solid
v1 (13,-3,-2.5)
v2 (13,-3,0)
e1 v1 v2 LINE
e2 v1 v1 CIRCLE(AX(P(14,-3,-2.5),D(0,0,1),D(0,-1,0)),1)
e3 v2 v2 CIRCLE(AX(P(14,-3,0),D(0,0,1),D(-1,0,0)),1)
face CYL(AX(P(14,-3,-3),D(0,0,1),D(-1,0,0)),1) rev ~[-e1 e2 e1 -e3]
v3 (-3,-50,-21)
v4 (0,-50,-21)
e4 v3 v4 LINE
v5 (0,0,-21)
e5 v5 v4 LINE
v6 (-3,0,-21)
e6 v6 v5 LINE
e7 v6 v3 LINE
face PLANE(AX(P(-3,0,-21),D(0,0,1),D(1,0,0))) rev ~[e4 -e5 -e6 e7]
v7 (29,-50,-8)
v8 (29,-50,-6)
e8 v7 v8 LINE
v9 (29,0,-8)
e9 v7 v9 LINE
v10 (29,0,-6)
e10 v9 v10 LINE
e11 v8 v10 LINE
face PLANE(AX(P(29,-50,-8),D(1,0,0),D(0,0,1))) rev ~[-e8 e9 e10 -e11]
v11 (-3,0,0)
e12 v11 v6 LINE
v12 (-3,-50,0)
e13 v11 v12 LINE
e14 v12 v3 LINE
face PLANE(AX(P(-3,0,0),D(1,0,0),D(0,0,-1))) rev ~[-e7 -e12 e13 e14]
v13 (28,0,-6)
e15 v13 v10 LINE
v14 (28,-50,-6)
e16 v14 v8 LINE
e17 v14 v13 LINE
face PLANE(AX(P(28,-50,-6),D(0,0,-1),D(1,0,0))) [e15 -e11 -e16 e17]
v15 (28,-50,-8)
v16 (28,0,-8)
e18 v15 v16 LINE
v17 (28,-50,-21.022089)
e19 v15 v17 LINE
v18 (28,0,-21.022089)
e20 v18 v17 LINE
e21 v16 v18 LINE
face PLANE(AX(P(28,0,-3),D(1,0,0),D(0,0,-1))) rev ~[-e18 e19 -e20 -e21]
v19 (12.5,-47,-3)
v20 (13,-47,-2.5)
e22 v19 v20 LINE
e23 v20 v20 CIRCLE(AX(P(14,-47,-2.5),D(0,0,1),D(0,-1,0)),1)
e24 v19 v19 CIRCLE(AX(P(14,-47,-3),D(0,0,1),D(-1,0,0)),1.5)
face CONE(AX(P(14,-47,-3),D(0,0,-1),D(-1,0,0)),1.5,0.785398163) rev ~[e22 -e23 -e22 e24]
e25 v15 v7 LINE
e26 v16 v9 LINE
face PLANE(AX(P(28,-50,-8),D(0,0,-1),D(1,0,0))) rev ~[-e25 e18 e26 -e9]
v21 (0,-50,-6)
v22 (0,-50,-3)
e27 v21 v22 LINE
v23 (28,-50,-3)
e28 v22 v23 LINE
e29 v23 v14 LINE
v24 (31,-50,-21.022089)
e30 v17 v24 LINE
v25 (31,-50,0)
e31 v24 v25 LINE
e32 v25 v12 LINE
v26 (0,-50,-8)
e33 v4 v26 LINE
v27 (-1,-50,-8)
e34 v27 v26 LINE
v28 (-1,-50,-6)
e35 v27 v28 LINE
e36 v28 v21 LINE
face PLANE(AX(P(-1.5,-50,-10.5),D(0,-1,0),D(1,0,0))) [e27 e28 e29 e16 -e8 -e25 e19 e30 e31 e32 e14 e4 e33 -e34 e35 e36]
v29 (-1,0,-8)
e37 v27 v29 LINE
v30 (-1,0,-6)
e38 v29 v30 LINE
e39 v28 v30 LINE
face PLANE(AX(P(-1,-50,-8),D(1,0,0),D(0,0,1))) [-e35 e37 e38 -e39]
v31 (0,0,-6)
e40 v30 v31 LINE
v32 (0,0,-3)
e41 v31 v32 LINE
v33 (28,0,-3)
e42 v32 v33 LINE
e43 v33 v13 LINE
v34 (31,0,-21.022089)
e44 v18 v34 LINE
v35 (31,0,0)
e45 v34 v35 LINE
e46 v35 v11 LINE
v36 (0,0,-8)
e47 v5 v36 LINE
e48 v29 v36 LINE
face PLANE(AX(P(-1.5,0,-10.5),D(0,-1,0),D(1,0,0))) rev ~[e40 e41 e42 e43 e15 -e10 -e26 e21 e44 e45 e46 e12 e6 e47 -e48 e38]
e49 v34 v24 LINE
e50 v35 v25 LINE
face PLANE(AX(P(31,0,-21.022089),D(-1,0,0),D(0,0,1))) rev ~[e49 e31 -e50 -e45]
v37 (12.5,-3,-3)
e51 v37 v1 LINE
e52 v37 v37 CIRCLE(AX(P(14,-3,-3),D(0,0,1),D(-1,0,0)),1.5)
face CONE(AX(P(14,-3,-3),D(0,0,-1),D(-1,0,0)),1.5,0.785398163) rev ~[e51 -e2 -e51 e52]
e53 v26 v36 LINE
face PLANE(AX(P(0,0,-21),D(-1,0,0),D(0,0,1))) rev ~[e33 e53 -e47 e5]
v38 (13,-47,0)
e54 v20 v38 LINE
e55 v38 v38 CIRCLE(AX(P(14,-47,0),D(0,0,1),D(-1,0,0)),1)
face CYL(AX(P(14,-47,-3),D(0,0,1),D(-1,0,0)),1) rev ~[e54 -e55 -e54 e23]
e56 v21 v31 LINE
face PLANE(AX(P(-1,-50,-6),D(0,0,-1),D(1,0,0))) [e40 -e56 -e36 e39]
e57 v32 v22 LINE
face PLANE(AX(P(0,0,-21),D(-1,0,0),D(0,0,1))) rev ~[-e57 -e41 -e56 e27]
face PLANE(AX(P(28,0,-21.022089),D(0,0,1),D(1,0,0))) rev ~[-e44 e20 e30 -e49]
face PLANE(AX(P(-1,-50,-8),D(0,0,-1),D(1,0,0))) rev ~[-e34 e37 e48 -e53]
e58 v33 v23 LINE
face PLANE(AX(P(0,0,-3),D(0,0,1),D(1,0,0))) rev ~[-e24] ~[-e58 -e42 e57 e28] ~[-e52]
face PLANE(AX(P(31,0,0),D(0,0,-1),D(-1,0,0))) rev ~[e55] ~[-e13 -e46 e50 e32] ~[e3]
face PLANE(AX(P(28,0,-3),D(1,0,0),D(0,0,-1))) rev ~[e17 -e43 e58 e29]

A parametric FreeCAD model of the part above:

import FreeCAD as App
import Part
import Sketcher
Q = App.Units.Quantity

doc = App.newDocument("Part")
params = doc.addObject("Spreadsheet::Sheet", "Params")
for row, (alias, value) in enumerate([
    ("sketch1_width", "3 mm"),
    ("sketch1_width2", "28 mm"),
    ("sketch1_height", "21 mm"),
    ("sketch1_height2", "18 mm"),
    ("pad1_length", "50 mm"),
    ("sketch2_width", "1 mm"),
    ("sketch2_height", "2 mm"),
    ("pocket1_length", "50 mm"),
    ("sketch3_diameter", "2 mm"),
    ("hole_diameter", "2 mm"),
    ("hole_csink_diameter", "3 mm"),
    ("sketch4_diameter", "2 mm"),
    ("hole2_diameter", "2 mm"),
    ("hole2_csink_diameter", "3 mm"),
], start=1):
    params.set(f"A{row}", alias)
    params.set(f"B{row}", "=" + value)
    params.setAlias(f"B{row}", alias)

body = doc.addObject("PartDesign::Body", "Body")

# Sketch on XZ plane
sketch1 = doc.addObject("Sketcher::SketchObject", "Sketch")
body.addObject(sketch1)
sketch1.AttachmentSupport = (doc.XZ_Plane, [""])
sketch1.MapMode = "FlatFace"
sketch1.addGeometry([
    Part.LineSegment(App.Vector(-3, 0, 0), App.Vector(-3, -21, 0)),  # 0
    Part.LineSegment(App.Vector(-3, -21, 0), App.Vector(0, -21, 0)),  # 1
    Part.LineSegment(App.Vector(0, -21, 0), App.Vector(0, -3, 0)),  # 2
    Part.LineSegment(App.Vector(0, -3, 0), App.Vector(28, -3, 0)),  # 3
    Part.LineSegment(App.Vector(28, -3, 0), App.Vector(28, -21, 0)),  # 4
    Part.LineSegment(App.Vector(28, -21, 0), App.Vector(31, -21, 0)),  # 5
    Part.LineSegment(App.Vector(31, -21, 0), App.Vector(31, 0, 0)),  # 6
    Part.LineSegment(App.Vector(31, 0, 0), App.Vector(-3, 0, 0)),  # 7
], False)
sketch1.addConstraint([
    Sketcher.Constraint("Coincident", 0, 2, 1, 1),
    Sketcher.Constraint("Coincident", 1, 2, 2, 1),
    Sketcher.Constraint("Coincident", 2, 2, 3, 1),
    Sketcher.Constraint("Coincident", 3, 2, 4, 1),
    Sketcher.Constraint("Coincident", 4, 2, 5, 1),
    Sketcher.Constraint("Coincident", 5, 2, 6, 1),
    Sketcher.Constraint("Coincident", 6, 2, 7, 1),
    Sketcher.Constraint("Coincident", 7, 2, 0, 1),
    Sketcher.Constraint("Vertical", 0),
    Sketcher.Constraint("Horizontal", 1),
    Sketcher.Constraint("Vertical", 2),
    Sketcher.Constraint("Horizontal", 3),
    Sketcher.Constraint("Vertical", 4),
    Sketcher.Constraint("Horizontal", 5),
    Sketcher.Constraint("Vertical", 6),
    Sketcher.Constraint("Horizontal", 7),
    Sketcher.Constraint("PointOnObject", 1, 2, -2),
    Sketcher.Constraint("PointOnObject", 6, 2, -1),
    Sketcher.Constraint("Equal", 1, 5),
    Sketcher.Constraint("DistanceX", 1, 1, 1, 2, Q("3 mm")),
    Sketcher.Constraint("DistanceX", 3, 1, 3, 2, Q("28 mm")),
    Sketcher.Constraint("DistanceY", 0, 2, 0, 1, Q("21 mm")),
    Sketcher.Constraint("DistanceY", 2, 1, 2, 2, Q("18 mm")),
    Sketcher.Constraint("DistanceY", 4, 2, 4, 1, Q("18.022089 mm")),
])
sketch1.setExpression("Constraints[19]", "Params.sketch1_width")
sketch1.setExpression("Constraints[20]", "Params.sketch1_width2")
sketch1.setExpression("Constraints[21]", "Params.sketch1_height")
sketch1.setExpression("Constraints[22]", "Params.sketch1_height2")
pad1 = doc.addObject("PartDesign::Pad", "Pad")
body.addObject(pad1)
pad1.Profile = sketch1
pad1.setExpression("Length", "Params.pad1_length")

# Sketch on XZ plane
sketch2 = doc.addObject("Sketcher::SketchObject", "Sketch001")
body.addObject(sketch2)
sketch2.AttachmentSupport = (doc.XZ_Plane, [""])
sketch2.MapMode = "FlatFace"
sketch2.AttachmentOffset = App.Placement(App.Vector(0, 0, 50), App.Rotation())
sketch2.addGeometry([
    Part.LineSegment(App.Vector(-1, -6, 0), App.Vector(-1, -8, 0)),  # 0
    Part.LineSegment(App.Vector(-1, -8, 0), App.Vector(0, -8, 0)),  # 1
    Part.LineSegment(App.Vector(0, -8, 0), App.Vector(0, -6, 0)),  # 2
    Part.LineSegment(App.Vector(0, -6, 0), App.Vector(-1, -6, 0)),  # 3
    Part.LineSegment(App.Vector(28, -6, 0), App.Vector(28, -8, 0)),  # 4
    Part.LineSegment(App.Vector(28, -8, 0), App.Vector(29, -8, 0)),  # 5
    Part.LineSegment(App.Vector(29, -8, 0), App.Vector(29, -6, 0)),  # 6
    Part.LineSegment(App.Vector(29, -6, 0), App.Vector(28, -6, 0)),  # 7
], False)
sketch2.addConstraint([
    Sketcher.Constraint("Coincident", 0, 2, 1, 1),
    Sketcher.Constraint("Coincident", 1, 2, 2, 1),
    Sketcher.Constraint("Coincident", 2, 2, 3, 1),
    Sketcher.Constraint("Coincident", 3, 2, 0, 1),
    Sketcher.Constraint("Coincident", 4, 2, 5, 1),
    Sketcher.Constraint("Coincident", 5, 2, 6, 1),
    Sketcher.Constraint("Coincident", 6, 2, 7, 1),
    Sketcher.Constraint("Coincident", 7, 2, 4, 1),
    Sketcher.Constraint("Vertical", 0),
    Sketcher.Constraint("Horizontal", 1),
    Sketcher.Constraint("Vertical", 2),
    Sketcher.Constraint("Horizontal", 3),
    Sketcher.Constraint("Vertical", 4),
    Sketcher.Constraint("Horizontal", 5),
    Sketcher.Constraint("Vertical", 6),
    Sketcher.Constraint("Horizontal", 7),
    Sketcher.Constraint("PointOnObject", 1, 2, -2),
    Sketcher.Constraint("Horizontal", 1, 2, 4, 2),
    Sketcher.Constraint("Horizontal", 3, 2, 6, 2),
    Sketcher.Constraint("Equal", 3, 5),
    Sketcher.Constraint("DistanceX", 1, 1, 1, 2, Q("1 mm")),
    Sketcher.Constraint("DistanceY", 0, 2, 0, 1, Q("2 mm")),
    Sketcher.Constraint("DistanceY", 0, 2, -1, 1, Q("8 mm")),
    Sketcher.Constraint("DistanceX", -1, 1, 4, 2, Q("28 mm")),
])
sketch2.setExpression("Constraints[20]", "Params.sketch2_width")
sketch2.setExpression("Constraints[21]", "Params.sketch2_height")
pocket1 = doc.addObject("PartDesign::Pocket", "Pocket")
body.addObject(pocket1)
pocket1.Profile = sketch2
pocket1.setExpression("Length", "Params.pocket1_length")

# Sketch on XY plane
sketch3 = doc.addObject("Sketcher::SketchObject", "Sketch002")
body.addObject(sketch3)
sketch3.AttachmentSupport = (doc.XY_Plane, [""])
sketch3.MapMode = "FlatFace"
sketch3.AttachmentOffset = App.Placement(App.Vector(0, 0, -3), App.Rotation())
sketch3.addGeometry(Part.Circle(App.Vector(14, -47, 0), App.Vector(0, 0, 1), 1), False)
sketch3.addConstraint([
    Sketcher.Constraint("Diameter", 0, Q("2 mm")),
    Sketcher.Constraint("DistanceX", -1, 1, 0, 3, Q("14 mm")),
    Sketcher.Constraint("DistanceY", 0, 3, -1, 1, Q("47 mm")),
])
sketch3.setExpression("Constraints[0]", "Params.sketch3_diameter")
doc.recompute()
hole = doc.addObject("PartDesign::Hole", "Hole")
body.addObject(hole)
hole.Profile = sketch3
hole.ThreadType = "None"
hole.setExpression("Diameter", "Params.hole_diameter")
hole.DepthType = "ThroughAll"
hole.HoleCutType = "Countersink"
hole.setExpression("HoleCutDiameter", "Params.hole_csink_diameter")
hole.HoleCutCountersinkAngle = 90
hole.Reversed = True

# Sketch on XY plane
sketch4 = doc.addObject("Sketcher::SketchObject", "Sketch003")
body.addObject(sketch4)
sketch4.AttachmentSupport = (doc.XY_Plane, [""])
sketch4.MapMode = "FlatFace"
sketch4.AttachmentOffset = App.Placement(App.Vector(0, 0, -3), App.Rotation())
sketch4.addGeometry(Part.Circle(App.Vector(14, -3, 0), App.Vector(0, 0, 1), 1), False)
sketch4.addConstraint([
    Sketcher.Constraint("Diameter", 0, Q("2 mm")),
    Sketcher.Constraint("DistanceX", -1, 1, 0, 3, Q("14 mm")),
    Sketcher.Constraint("DistanceY", 0, 3, -1, 1, Q("3 mm")),
])
sketch4.setExpression("Constraints[0]", "Params.sketch4_diameter")
doc.recompute()
hole2 = doc.addObject("PartDesign::Hole", "Hole001")
body.addObject(hole2)
hole2.Profile = sketch4
hole2.ThreadType = "None"
hole2.setExpression("Diameter", "Params.hole2_diameter")
hole2.DepthType = "ThroughAll"
hole2.HoleCutType = "Countersink"
hole2.setExpression("HoleCutDiameter", "Params.hole2_csink_diameter")
hole2.HoleCutCountersinkAngle = 90
hole2.Reversed = True

doc.recompute()
